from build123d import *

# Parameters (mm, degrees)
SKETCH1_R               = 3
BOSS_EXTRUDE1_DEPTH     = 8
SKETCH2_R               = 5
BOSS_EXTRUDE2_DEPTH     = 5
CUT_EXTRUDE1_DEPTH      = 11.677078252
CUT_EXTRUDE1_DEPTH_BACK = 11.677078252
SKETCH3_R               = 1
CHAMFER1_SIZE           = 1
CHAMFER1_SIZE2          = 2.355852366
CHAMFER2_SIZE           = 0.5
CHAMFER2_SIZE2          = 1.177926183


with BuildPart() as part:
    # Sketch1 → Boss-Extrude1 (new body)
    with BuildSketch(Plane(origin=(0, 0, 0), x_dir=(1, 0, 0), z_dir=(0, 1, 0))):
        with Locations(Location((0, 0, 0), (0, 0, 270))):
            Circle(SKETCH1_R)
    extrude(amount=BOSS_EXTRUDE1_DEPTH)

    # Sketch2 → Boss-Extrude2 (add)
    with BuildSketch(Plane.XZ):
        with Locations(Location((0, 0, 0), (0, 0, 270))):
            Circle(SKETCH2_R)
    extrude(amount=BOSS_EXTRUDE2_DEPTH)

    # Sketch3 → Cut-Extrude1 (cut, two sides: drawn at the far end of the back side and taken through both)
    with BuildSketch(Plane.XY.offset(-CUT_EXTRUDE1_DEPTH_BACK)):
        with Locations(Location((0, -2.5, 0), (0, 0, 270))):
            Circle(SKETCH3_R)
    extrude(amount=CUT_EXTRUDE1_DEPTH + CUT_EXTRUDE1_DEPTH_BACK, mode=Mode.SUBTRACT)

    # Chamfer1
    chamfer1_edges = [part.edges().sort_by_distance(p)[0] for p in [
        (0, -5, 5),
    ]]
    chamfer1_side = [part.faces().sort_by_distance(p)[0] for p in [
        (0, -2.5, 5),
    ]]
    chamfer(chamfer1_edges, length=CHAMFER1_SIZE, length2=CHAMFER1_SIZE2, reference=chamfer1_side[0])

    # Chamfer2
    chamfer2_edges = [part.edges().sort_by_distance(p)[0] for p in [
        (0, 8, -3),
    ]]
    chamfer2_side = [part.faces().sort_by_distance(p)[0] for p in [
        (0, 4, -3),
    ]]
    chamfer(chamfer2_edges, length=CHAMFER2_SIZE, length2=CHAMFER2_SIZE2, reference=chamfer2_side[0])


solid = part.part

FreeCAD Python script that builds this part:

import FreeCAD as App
import Part
import Sketcher


def edges_at(feature, points):
    """Names of the edges that pass closest to the given points."""
    edges = feature.Shape.Edges
    near = lambda p: min(range(len(edges)), key=lambda i: edges[i].distToShape(Part.Vertex(*p))[0])
    return sorted({f"Edge{near(p) + 1}" for p in points})

doc = App.newDocument("Part")
body = doc.addObject("PartDesign::Body", "Body")

# Sketch on XZ plane
sketch1 = body.newObject("Sketcher::SketchObject", "Sketch")
sketch1.AttachmentSupport = (doc.getObject("XZ_Plane"), [""])
sketch1.MapMode = "FlatFace"
sketch1.addGeometry(Part.Circle(App.Vector(0, 0, 0), App.Vector(0, 0, 1), 3), False)
sketch1.addConstraint([
    Sketcher.Constraint("Coincident", 0, 3, -1, 1),
    Sketcher.Constraint("Diameter", 0, 6.0),
])
pad1 = body.newObject("PartDesign::Pad", "Pad")
pad1.Profile = sketch1
pad1.Length = 8
pad1.Reversed = True

# Sketch on XZ plane
sketch2 = body.newObject("Sketcher::SketchObject", "Sketch001")
sketch2.AttachmentSupport = (doc.getObject("XZ_Plane"), [""])
sketch2.MapMode = "FlatFace"
sketch2.addGeometry(Part.Circle(App.Vector(0, 0, 0), App.Vector(0, 0, 1), 5), False)
sketch2.addConstraint([
    Sketcher.Constraint("Coincident", 0, 3, -1, 1),
    Sketcher.Constraint("Diameter", 0, 10.0),
])
pad2 = body.newObject("PartDesign::Pad", "Pad001")
pad2.Profile = sketch2
pad2.Length = 5

# Sketch on XY plane
sketch3 = body.newObject("Sketcher::SketchObject", "Sketch002")
sketch3.AttachmentSupport = (doc.getObject("XY_Plane"), [""])
sketch3.MapMode = "FlatFace"
sketch3.addGeometry(Part.Circle(App.Vector(0, -2.5, 0), App.Vector(0, 0, 1), 1), False)
sketch3.addConstraint([
    Sketcher.Constraint("PointOnObject", 0, 3, -2),
    Sketcher.Constraint("Diameter", 0, 2.0),
    Sketcher.Constraint("DistanceY", 0, 3, -1, 1, 2.5),
])
pocket1 = body.newObject("PartDesign::Pocket", "Pocket")
pocket1.Profile = sketch3
pocket1.Type = "ThroughAll"
pocket1.Midplane = True
doc.recompute()

chamfer = body.newObject("PartDesign::Chamfer", "Chamfer")
chamfer.Base = (pocket1, edges_at(pocket1, [(0, -5, 5)]))
chamfer.ChamferType = "Two distances"
chamfer.Size = 1
chamfer.Size2 = 2.355852
doc.recompute()

chamfer2 = body.newObject("PartDesign::Chamfer", "Chamfer001")
chamfer2.Base = (chamfer, edges_at(chamfer, [(0, 8, -3)]))
chamfer2.ChamferType = "Two distances"
chamfer2.Size = 0.5
chamfer2.Size2 = 1.177926

doc.recompute()
